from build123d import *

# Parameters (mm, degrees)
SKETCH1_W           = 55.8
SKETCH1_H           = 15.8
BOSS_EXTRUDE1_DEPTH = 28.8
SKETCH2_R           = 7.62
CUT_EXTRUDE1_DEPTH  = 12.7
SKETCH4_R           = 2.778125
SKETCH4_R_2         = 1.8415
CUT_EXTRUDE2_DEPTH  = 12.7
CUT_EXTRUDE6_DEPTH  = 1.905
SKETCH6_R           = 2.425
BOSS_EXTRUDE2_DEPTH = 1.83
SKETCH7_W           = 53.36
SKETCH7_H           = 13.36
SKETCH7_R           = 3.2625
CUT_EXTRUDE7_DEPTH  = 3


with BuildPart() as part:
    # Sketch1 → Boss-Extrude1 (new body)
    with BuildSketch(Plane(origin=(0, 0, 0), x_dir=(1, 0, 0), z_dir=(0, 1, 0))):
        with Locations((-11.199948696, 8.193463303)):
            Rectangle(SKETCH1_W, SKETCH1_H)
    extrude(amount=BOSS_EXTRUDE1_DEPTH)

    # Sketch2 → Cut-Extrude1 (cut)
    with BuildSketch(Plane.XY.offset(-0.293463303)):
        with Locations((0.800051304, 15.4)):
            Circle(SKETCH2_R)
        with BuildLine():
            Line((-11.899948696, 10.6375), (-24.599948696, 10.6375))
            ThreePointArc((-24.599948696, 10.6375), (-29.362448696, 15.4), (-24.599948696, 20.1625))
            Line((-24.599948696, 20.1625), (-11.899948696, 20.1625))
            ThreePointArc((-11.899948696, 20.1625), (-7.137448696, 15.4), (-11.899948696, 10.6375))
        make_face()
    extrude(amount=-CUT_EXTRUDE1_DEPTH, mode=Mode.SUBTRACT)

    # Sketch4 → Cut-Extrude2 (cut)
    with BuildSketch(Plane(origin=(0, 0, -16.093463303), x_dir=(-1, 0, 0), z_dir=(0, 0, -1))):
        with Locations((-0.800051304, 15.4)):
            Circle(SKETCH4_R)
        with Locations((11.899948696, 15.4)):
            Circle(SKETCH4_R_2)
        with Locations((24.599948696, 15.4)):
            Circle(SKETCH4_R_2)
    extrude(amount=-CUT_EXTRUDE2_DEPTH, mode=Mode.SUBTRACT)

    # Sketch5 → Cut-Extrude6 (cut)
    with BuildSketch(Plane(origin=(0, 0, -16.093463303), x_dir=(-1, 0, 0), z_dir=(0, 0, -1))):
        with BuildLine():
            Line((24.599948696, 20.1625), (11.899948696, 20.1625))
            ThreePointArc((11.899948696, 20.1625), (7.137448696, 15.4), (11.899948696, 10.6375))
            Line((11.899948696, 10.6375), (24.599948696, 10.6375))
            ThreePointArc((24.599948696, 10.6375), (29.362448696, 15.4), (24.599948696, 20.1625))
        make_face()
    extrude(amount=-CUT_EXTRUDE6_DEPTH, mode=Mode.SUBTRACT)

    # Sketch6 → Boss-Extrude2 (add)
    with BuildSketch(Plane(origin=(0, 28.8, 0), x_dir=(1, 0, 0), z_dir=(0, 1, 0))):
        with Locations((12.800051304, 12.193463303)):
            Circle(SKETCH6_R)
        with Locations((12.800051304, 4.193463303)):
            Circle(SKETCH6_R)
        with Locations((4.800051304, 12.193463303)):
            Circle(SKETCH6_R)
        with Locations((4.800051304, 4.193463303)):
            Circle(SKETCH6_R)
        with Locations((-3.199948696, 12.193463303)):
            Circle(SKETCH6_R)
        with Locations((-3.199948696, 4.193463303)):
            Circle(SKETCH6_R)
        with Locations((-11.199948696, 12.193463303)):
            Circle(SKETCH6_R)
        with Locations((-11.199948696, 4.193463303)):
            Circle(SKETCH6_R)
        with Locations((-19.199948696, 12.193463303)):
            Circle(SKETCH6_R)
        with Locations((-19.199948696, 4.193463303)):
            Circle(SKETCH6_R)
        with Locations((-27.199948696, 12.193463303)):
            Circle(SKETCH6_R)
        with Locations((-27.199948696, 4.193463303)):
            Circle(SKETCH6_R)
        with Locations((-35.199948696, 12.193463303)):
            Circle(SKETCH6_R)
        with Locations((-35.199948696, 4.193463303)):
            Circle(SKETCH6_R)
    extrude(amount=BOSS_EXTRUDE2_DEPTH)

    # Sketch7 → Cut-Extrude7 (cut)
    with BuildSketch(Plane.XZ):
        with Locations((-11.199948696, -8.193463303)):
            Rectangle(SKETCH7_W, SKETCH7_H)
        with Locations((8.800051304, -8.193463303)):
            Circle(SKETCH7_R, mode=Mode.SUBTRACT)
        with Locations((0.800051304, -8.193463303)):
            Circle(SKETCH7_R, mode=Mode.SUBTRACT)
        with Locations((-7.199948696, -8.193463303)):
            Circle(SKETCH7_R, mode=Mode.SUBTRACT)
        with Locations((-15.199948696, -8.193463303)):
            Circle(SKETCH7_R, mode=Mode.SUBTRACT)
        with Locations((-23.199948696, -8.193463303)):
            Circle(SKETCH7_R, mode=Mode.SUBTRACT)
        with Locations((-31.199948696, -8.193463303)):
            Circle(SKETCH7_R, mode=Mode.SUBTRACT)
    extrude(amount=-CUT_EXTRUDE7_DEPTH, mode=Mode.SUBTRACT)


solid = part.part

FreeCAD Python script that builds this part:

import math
import FreeCAD as App
import Part
import Sketcher

V = App.Vector
Q = App.Units.Quantity


def add_polygon(sketch, points):
    """Adds a closed chain of lines whose ends are joined by coincident constraints."""
    first, n = sketch.GeometryCount, len(points)
    for a, b in zip(points, points[1:] + points[:1]):
        sketch.addGeometry(Part.LineSegment(App.Vector(*a, 0), App.Vector(*b, 0)), False)
    for i in range(n):
        sketch.addConstraint(Sketcher.Constraint("Coincident", first + i, 2, first + (i + 1) % n, 1))

doc = App.newDocument("Part")
body = doc.addObject("PartDesign::Body", "Body")

# Sketch on XZ plane
sketch1 = body.newObject("Sketcher::SketchObject", "Sketch")
sketch1.AttachmentSupport = (doc.getObject("XZ_Plane"), [""])
sketch1.MapMode = "FlatFace"
add_polygon(sketch1, [(-39, -16), (-39, 0), (17, 0), (17, -16)])  # lines 0-3
sketch1.addConstraint([
    Sketcher.Constraint("Vertical", 0),
    Sketcher.Constraint("Horizontal", 1),
    Sketcher.Constraint("Vertical", 2),
    Sketcher.Constraint("Horizontal", 3),
    Sketcher.Constraint("DistanceX", 1, 1, 1, 2, Q("55.8 mm")),
    Sketcher.Constraint("DistanceY", 0, 1, 0, 2, Q("15.8 mm")),
    Sketcher.Constraint("DistanceX", 0, 2, -1, 1, Q("39.099949 mm")),
    Sketcher.Constraint("DistanceY", 0, 2, -1, 1, Q("0.293463 mm")),
])
pad1 = body.newObject("PartDesign::Pad", "Pad")
pad1.Profile = sketch1
pad1.Length = 28.8
pad1.Reversed = True

# Sketch on XY plane
sketch2 = body.newObject("Sketcher::SketchObject", "Sketch001")
sketch2.AttachmentSupport = (doc.getObject("XY_Plane"), [""])
sketch2.MapMode = "FlatFace"
sketch2.AttachmentOffset = App.Placement(V(0, 0, -0.293463), App.Rotation())
sketch2.addGeometry([
    Part.Circle(V(0.8, 15.4, 0), V(0, 0, 1), 7.6),  # 0
    Part.LineSegment(V(-24.6, 10.6, 0), V(-11.9, 10.6, 0)),  # 1
    Part.ArcOfCircle(Part.Circle(V(-11.9, 15.4, 0), V(0, 0, 1), 4.8), math.radians(-90), math.radians(90)),  # 2
    Part.LineSegment(V(-11.9, 20.2, 0), V(-24.6, 20.2, 0)),  # 3
    Part.ArcOfCircle(Part.Circle(V(-24.6, 15.4, 0), V(0, 0, 1), 4.8), math.radians(90), math.radians(270)),  # 4
], False)
sketch2.addConstraint([
    Sketcher.Constraint("Tangent", 1, 2, 2, 1),
    Sketcher.Constraint("Tangent", 2, 2, 3, 1),
    Sketcher.Constraint("Tangent", 3, 2, 4, 1),
    Sketcher.Constraint("Tangent", 4, 2, 1, 1),
    Sketcher.Constraint("Horizontal", 1),
    Sketcher.Constraint("Horizontal", 3),
    Sketcher.Constraint("Horizontal", 0, 3, 2, 3),
    Sketcher.Constraint("Diameter", 0, Q("0.6 in")),
    Sketcher.Constraint("DistanceX", 1, 1, 1, 2, Q("0.5 in")),
    Sketcher.Constraint("Radius", 2, Q("0.1875 in")),
    Sketcher.Constraint("DistanceX", 4, 3, 0, 3, Q("1 in")),
    Sketcher.Constraint("DistanceY", -1, 1, 0, 3, Q("15.4 mm")),
    Sketcher.Constraint("DistanceX", -1, 1, 0, 3, Q("0.800051 mm")),
])
pocket1 = body.newObject("PartDesign::Pocket", "Pocket")
pocket1.Profile = sketch2
pocket1.Length = Q("0.5 in")

# Sketch on XY plane
sketch3 = body.newObject("Sketcher::SketchObject", "Sketch002")
sketch3.AttachmentSupport = (doc.getObject("XY_Plane"), [""])
sketch3.MapMode = "FlatFace"
sketch3.AttachmentOffset = App.Placement(V(0, 0, -16.093463), App.Rotation())
sketch3.addGeometry([
    Part.Circle(V(0.8, 15.4, 0), V(0, 0, 1), 2.8),
    Part.Circle(V(-11.9, 15.4, 0), V(0, 0, 1), 1.8),
    Part.Circle(V(-24.6, 15.4, 0), V(0, 0, 1), 1.8),
], False)
sketch3.addConstraint([
    Sketcher.Constraint("Equal", 1, 2),
    Sketcher.Constraint("Horizontal", 0, 3, 1, 3),
    Sketcher.Constraint("Horizontal", 1, 3, 2, 3),
    Sketcher.Constraint("Diameter", 0, Q("0.21875 in")),
    Sketcher.Constraint("Diameter", 1, Q("0.145 in")),
    Sketcher.Constraint("DistanceX", 2, 3, 0, 3, Q("1 in")),
    Sketcher.Constraint("DistanceX", 1, 3, 0, 3, Q("0.5 in")),
    Sketcher.Constraint("DistanceY", -1, 1, 0, 3, Q("15.4 mm")),
    Sketcher.Constraint("DistanceX", -1, 1, 0, 3, Q("0.800051 mm")),
])
pocket2 = body.newObject("PartDesign::Pocket", "Pocket001")
pocket2.Profile = sketch3
pocket2.Length = Q("0.5 in")
pocket2.Reversed = True

# Sketch on XY plane
sketch4 = body.newObject("Sketcher::SketchObject", "Sketch003")
sketch4.AttachmentSupport = (doc.getObject("XY_Plane"), [""])
sketch4.MapMode = "FlatFace"
sketch4.AttachmentOffset = App.Placement(V(0, 0, -16.093463), App.Rotation())
sketch4.addGeometry([
    Part.LineSegment(V(-24.6, 20.2, 0), V(-11.9, 20.2, 0)),
    Part.ArcOfCircle(Part.Circle(V(-11.9, 15.4, 0), V(0, 0, 1), 4.8), math.radians(-90), math.radians(90)),
    Part.LineSegment(V(-11.9, 10.6, 0), V(-24.6, 10.6, 0)),
    Part.ArcOfCircle(Part.Circle(V(-24.6, 15.4, 0), V(0, 0, 1), 4.8), math.radians(90), math.radians(270)),
], False)
sketch4.addConstraint([
    Sketcher.Constraint("Tangent", 0, 2, 1, 2),
    Sketcher.Constraint("Tangent", 1, 1, 2, 1),
    Sketcher.Constraint("Tangent", 2, 2, 3, 2),
    Sketcher.Constraint("Tangent", 3, 1, 0, 1),
    Sketcher.Constraint("Horizontal", 0),
    Sketcher.Constraint("Horizontal", 2),
    Sketcher.Constraint("DistanceX", 0, 1, 0, 2, Q("0.5 in")),
    Sketcher.Constraint("Radius", 1, Q("0.1875 in")),
    Sketcher.Constraint("DistanceY", -1, 1, 1, 3, Q("15.4 mm")),
    Sketcher.Constraint("DistanceX", 1, 3, -1, 1, Q("11.899949 mm")),
])
pocket3 = body.newObject("PartDesign::Pocket", "Pocket002")
pocket3.Profile = sketch4
pocket3.Length = Q("0.075 in")
pocket3.Reversed = True

# Sketch on XZ plane
sketch5 = body.newObject("Sketcher::SketchObject", "Sketch004")
sketch5.AttachmentSupport = (doc.getObject("XZ_Plane"), [""])
sketch5.MapMode = "FlatFace"
sketch5.AttachmentOffset = App.Placement(V(0, 0, -28.8), App.Rotation())
sketch5.addGeometry([
    Part.Circle(V(12.8, -12.2, 0), V(0, 0, 1), 2.4),  # 0
    Part.Circle(V(12.8, -4.2, 0), V(0, 0, 1), 2.4),  # 1
    Part.Circle(V(4.8, -12.2, 0), V(0, 0, 1), 2.4),  # 2
    Part.Circle(V(4.8, -4.2, 0), V(0, 0, 1), 2.4),  # 3
    Part.Circle(V(-3.2, -12.2, 0), V(0, 0, 1), 2.4),  # 4
    Part.Circle(V(-3.2, -4.2, 0), V(0, 0, 1), 2.4),  # 5
    Part.Circle(V(-11.2, -12.2, 0), V(0, 0, 1), 2.4),  # 6
    Part.Circle(V(-11.2, -4.2, 0), V(0, 0, 1), 2.4),  # 7
    Part.Circle(V(-19.2, -12.2, 0), V(0, 0, 1), 2.4),  # 8
    Part.Circle(V(-19.2, -4.2, 0), V(0, 0, 1), 2.4),  # 9
    Part.Circle(V(-27.2, -12.2, 0), V(0, 0, 1), 2.4),  # 10
    Part.Circle(V(-27.2, -4.2, 0), V(0, 0, 1), 2.4),  # 11
    Part.Circle(V(-35.2, -12.2, 0), V(0, 0, 1), 2.4),  # 12
    Part.Circle(V(-35.2, -4.2, 0), V(0, 0, 1), 2.4),  # 13
], False)
sketch5.addConstraint([
    Sketcher.Constraint("Equal", 0, 1),
    Sketcher.Constraint("Equal", 1, 2),
    Sketcher.Constraint("Equal", 2, 3),
    Sketcher.Constraint("Equal", 3, 4),
    Sketcher.Constraint("Equal", 4, 5),
    Sketcher.Constraint("Equal", 5, 6),
    Sketcher.Constraint("Equal", 6, 7),
    Sketcher.Constraint("Equal", 7, 8),
    Sketcher.Constraint("Equal", 8, 9),
    Sketcher.Constraint("Equal", 9, 10),
    Sketcher.Constraint("Equal", 10, 11),
    Sketcher.Constraint("Equal", 11, 12),
    Sketcher.Constraint("Equal", 12, 13),
    Sketcher.Constraint("Horizontal", 0, 3, 2, 3),
    Sketcher.Constraint("Horizontal", 1, 3, 3, 3),
    Sketcher.Constraint("Horizontal", 2, 3, 4, 3),
    Sketcher.Constraint("Horizontal", 3, 3, 5, 3),
    Sketcher.Constraint("Horizontal", 4, 3, 6, 3),
    Sketcher.Constraint("Horizontal", 5, 3, 7, 3),
    Sketcher.Constraint("Horizontal", 6, 3, 8, 3),
    Sketcher.Constraint("Horizontal", 7, 3, 9, 3),
    Sketcher.Constraint("Horizontal", 8, 3, 10, 3),
    Sketcher.Constraint("Horizontal", 9, 3, 11, 3),
    Sketcher.Constraint("Horizontal", 10, 3, 12, 3),
    Sketcher.Constraint("Horizontal", 11, 3, 13, 3),
    Sketcher.Constraint("Vertical", 0, 3, 1, 3),
    Sketcher.Constraint("Vertical", 2, 3, 3, 3),
    Sketcher.Constraint("Vertical", 4, 3, 5, 3),
    Sketcher.Constraint("Vertical", 6, 3, 7, 3),
    Sketcher.Constraint("Vertical", 8, 3, 9, 3),
    Sketcher.Constraint("Vertical", 10, 3, 11, 3),
    Sketcher.Constraint("Vertical", 12, 3, 13, 3),
    Sketcher.Constraint("Diameter", 0, Q("4.85 mm")),
    Sketcher.Constraint("DistanceY", 0, 3, 1, 3, Q("8 mm")),
    Sketcher.Constraint("DistanceX", 2, 3, 0, 3, Q("8 mm")),
    Sketcher.Constraint("DistanceX", 4, 3, 2, 3, Q("8 mm")),
    Sketcher.Constraint("DistanceX", 6, 3, 4, 3, Q("8 mm")),
    Sketcher.Constraint("DistanceX", 8, 3, 6, 3, Q("8 mm")),
    Sketcher.Constraint("DistanceX", 10, 3, 8, 3, Q("8 mm")),
    Sketcher.Constraint("DistanceX", 12, 3, 10, 3, Q("8 mm")),
    Sketcher.Constraint("DistanceX", -1, 1, 0, 3, Q("12.800051 mm")),
    Sketcher.Constraint("DistanceY", 0, 3, -1, 1, Q("12.193463 mm")),
])
pad2 = body.newObject("PartDesign::Pad", "Pad001")
pad2.Profile = sketch5
pad2.Length = 1.83
pad2.Reversed = True

# Sketch on XZ plane
sketch6 = body.newObject("Sketcher::SketchObject", "Sketch005")
sketch6.AttachmentSupport = (doc.getObject("XZ_Plane"), [""])
sketch6.MapMode = "FlatFace"
add_polygon(sketch6, [(-37.9, -1.5), (-37.9, -14.9), (15.5, -14.9), (15.5, -1.5)])  # lines 0-3
sketch6.addGeometry(Part.Circle(V(-31.2, -8.2, 0), V(0, 0, 1), 3.3), False)  # 4
sketch6.addGeometry(Part.Circle(V(-23.2, -8.2, 0), V(0, 0, 1), 3.3), False)  # 5
sketch6.addGeometry(Part.Circle(V(-15.2, -8.2, 0), V(0, 0, 1), 3.3), False)  # 6
sketch6.addGeometry(Part.Circle(V(-7.2, -8.2, 0), V(0, 0, 1), 3.3), False)  # 7
sketch6.addGeometry(Part.Circle(V(0.8, -8.2, 0), V(0, 0, 1), 3.3), False)  # 8
sketch6.addGeometry(Part.Circle(V(8.8, -8.2, 0), V(0, 0, 1), 3.3), False)  # 9
sketch6.addConstraint([
    Sketcher.Constraint("Vertical", 0),
    Sketcher.Constraint("Horizontal", 1),
    Sketcher.Constraint("Vertical", 2),
    Sketcher.Constraint("Horizontal", 3),
    Sketcher.Constraint("Equal", 4, 5),
    Sketcher.Constraint("Equal", 5, 6),
    Sketcher.Constraint("Equal", 6, 7),
    Sketcher.Constraint("Equal", 7, 8),
    Sketcher.Constraint("Equal", 8, 9),
    Sketcher.Constraint("Horizontal", 4, 3, 5, 3),
    Sketcher.Constraint("Horizontal", 5, 3, 6, 3),
    Sketcher.Constraint("Horizontal", 6, 3, 7, 3),
    Sketcher.Constraint("Horizontal", 7, 3, 8, 3),
    Sketcher.Constraint("Horizontal", 8, 3, 9, 3),
    Sketcher.Constraint("Diameter", 4, Q("6.525 mm")),
    Sketcher.Constraint("DistanceX", 1, 1, 1, 2, Q("53.36 mm")),
    Sketcher.Constraint("DistanceY", 0, 2, 0, 1, Q("13.36 mm")),
    Sketcher.Constraint("DistanceX", 4, 3, 5, 3, Q("8 mm")),
    Sketcher.Constraint("DistanceX", 5, 3, 6, 3, Q("8 mm")),
    Sketcher.Constraint("DistanceX", 6, 3, 7, 3, Q("8 mm")),
    Sketcher.Constraint("DistanceX", 7, 3, 8, 3, Q("8 mm")),
    Sketcher.Constraint("DistanceX", 8, 3, 9, 3, Q("8 mm")),
    Sketcher.Constraint("DistanceX", 0, 2, 4, 3, Q("6.68 mm")),
    Sketcher.Constraint("DistanceY", 0, 2, 4, 3, Q("6.68 mm")),
    Sketcher.Constraint("DistanceX", 4, 3, -1, 1, Q("31.199949 mm")),
    Sketcher.Constraint("DistanceY", 4, 3, -1, 1, Q("8.193463 mm")),
])
pocket4 = body.newObject("PartDesign::Pocket", "Pocket003")
pocket4.Profile = sketch6
pocket4.Length = 3

doc.recompute()
